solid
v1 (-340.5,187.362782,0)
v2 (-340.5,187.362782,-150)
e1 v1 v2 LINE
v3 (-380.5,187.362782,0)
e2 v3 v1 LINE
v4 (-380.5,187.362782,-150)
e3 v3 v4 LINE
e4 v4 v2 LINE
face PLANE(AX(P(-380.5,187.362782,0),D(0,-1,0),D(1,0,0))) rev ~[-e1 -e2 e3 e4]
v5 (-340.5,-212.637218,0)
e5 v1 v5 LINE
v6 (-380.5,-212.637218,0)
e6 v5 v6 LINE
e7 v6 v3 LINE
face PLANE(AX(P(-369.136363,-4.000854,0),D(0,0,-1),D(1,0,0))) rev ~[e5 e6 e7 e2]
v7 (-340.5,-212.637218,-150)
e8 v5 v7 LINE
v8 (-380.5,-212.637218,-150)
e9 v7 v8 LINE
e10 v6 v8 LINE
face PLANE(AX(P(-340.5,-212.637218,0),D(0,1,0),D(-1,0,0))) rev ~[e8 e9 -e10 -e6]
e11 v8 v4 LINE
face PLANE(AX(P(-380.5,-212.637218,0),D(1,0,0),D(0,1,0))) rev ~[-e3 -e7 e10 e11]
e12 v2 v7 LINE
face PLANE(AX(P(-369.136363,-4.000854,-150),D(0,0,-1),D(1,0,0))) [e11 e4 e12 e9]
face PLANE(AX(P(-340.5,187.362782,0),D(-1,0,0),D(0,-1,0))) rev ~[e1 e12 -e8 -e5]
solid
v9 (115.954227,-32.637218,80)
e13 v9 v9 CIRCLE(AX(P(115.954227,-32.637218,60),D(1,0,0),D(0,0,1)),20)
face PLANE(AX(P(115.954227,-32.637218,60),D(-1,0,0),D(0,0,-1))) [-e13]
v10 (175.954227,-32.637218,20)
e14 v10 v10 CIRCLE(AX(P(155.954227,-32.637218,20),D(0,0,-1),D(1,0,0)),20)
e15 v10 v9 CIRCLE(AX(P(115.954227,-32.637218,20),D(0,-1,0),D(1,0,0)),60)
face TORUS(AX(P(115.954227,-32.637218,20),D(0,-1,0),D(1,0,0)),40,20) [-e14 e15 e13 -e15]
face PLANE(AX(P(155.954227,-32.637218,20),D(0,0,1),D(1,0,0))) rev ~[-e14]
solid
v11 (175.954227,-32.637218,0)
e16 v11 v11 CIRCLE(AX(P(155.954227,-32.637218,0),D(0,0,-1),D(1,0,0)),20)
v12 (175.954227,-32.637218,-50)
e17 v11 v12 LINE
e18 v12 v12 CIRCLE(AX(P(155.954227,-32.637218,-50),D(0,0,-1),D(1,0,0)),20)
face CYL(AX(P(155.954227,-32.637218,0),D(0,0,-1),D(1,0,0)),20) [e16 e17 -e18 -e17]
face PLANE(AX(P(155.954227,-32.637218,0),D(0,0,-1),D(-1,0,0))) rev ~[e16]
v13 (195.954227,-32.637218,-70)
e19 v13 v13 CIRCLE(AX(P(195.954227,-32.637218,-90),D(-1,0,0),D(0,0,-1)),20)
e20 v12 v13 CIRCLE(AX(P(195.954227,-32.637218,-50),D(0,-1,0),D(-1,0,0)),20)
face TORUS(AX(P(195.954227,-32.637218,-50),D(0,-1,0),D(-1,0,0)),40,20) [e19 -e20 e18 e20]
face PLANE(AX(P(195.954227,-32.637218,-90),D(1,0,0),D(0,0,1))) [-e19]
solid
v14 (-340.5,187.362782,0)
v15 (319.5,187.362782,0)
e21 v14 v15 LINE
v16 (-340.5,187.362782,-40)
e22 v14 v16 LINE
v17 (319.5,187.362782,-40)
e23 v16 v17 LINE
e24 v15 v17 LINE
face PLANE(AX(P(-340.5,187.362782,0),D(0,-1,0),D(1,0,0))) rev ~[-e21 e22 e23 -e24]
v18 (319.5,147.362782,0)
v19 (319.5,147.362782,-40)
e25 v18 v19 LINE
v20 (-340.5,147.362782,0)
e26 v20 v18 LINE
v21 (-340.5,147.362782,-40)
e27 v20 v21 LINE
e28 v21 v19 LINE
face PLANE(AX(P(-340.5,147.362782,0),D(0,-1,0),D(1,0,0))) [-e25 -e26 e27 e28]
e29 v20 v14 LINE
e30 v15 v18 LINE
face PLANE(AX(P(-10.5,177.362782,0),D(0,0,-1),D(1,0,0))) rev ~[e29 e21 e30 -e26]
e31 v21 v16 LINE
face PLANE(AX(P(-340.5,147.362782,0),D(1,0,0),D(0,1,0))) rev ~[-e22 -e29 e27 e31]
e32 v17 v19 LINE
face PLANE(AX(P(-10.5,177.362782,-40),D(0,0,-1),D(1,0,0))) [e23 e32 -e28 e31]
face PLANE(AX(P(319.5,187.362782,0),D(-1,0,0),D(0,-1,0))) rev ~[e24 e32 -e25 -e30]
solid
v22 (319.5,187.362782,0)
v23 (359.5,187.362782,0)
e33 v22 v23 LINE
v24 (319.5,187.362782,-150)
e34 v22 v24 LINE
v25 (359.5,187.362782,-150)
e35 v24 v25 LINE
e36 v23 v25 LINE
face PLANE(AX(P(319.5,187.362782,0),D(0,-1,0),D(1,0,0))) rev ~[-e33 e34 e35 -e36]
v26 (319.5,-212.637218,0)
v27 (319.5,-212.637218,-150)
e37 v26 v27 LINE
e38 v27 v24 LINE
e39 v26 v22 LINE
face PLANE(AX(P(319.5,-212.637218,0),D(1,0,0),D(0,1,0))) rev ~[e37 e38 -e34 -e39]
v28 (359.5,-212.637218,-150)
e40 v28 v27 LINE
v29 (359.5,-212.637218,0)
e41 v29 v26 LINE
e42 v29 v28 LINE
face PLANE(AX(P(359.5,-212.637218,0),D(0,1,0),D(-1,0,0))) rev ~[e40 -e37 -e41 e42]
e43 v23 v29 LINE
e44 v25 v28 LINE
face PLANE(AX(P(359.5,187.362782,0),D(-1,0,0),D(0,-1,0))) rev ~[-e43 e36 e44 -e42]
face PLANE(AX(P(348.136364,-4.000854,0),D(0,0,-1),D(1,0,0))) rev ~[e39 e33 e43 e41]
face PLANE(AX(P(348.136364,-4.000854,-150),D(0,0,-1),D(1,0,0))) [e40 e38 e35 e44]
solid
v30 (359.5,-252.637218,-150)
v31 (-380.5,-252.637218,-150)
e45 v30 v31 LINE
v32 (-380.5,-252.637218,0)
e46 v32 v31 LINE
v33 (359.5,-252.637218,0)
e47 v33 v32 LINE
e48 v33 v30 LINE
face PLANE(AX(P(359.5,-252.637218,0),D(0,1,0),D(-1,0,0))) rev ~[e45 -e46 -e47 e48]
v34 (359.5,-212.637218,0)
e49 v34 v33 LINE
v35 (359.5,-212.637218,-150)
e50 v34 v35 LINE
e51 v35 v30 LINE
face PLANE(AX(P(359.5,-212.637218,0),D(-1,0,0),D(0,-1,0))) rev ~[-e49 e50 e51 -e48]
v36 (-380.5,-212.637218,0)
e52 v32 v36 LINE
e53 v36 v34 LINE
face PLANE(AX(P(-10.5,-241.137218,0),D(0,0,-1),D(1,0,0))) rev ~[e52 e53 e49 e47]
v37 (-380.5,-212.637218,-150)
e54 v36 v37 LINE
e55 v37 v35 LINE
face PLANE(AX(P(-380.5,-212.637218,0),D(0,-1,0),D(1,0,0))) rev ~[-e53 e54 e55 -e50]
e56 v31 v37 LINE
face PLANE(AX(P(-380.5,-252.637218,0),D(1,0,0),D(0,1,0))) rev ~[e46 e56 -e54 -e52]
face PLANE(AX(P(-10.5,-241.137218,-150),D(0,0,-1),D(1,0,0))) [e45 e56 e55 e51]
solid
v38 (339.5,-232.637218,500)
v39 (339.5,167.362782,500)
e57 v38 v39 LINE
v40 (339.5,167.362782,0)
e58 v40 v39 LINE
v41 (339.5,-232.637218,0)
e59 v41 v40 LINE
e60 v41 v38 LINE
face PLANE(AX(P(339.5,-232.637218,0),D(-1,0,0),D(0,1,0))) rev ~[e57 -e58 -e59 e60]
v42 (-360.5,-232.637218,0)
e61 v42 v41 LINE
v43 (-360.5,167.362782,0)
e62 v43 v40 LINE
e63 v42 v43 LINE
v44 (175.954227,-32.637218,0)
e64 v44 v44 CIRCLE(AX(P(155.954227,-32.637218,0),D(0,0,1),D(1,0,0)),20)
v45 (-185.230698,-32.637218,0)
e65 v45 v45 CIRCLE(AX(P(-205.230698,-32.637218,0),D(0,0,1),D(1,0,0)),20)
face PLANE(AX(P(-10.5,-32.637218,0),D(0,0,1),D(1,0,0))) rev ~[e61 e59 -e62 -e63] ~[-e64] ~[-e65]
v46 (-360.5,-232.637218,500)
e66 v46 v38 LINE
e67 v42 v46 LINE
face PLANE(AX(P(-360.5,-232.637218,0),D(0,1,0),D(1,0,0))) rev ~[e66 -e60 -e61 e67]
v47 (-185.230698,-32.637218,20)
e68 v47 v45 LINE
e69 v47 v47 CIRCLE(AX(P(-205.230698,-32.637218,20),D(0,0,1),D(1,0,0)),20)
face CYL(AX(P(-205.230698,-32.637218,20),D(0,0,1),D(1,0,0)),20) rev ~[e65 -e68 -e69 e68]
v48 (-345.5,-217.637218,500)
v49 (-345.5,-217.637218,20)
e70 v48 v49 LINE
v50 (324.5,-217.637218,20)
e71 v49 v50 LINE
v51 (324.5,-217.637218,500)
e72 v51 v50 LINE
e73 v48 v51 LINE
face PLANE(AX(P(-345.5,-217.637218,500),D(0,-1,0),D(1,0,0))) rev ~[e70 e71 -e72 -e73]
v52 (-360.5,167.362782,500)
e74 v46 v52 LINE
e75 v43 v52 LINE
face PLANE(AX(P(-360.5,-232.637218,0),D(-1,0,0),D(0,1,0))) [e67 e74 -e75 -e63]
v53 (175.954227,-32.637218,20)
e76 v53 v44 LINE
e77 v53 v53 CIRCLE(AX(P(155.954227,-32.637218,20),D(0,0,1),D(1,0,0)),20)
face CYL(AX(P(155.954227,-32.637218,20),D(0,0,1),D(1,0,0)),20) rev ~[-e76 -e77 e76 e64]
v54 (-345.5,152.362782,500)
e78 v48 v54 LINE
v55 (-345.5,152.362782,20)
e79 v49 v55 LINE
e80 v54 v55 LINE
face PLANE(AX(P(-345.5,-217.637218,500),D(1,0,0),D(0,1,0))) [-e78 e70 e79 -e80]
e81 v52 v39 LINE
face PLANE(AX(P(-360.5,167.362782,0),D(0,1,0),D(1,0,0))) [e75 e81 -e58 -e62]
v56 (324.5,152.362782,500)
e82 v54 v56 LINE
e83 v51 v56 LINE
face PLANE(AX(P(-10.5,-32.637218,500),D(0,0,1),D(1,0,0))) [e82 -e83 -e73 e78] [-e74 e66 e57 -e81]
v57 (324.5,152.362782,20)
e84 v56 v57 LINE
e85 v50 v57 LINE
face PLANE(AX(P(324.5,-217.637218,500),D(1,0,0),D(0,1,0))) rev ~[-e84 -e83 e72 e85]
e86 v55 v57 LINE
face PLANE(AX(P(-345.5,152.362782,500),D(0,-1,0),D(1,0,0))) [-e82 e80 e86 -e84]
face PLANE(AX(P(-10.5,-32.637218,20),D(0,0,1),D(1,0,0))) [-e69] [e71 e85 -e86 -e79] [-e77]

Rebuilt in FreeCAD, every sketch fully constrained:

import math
import FreeCAD as App
import Part
import Sketcher
from FreeCAD import Vector

doc = App.newDocument("Part")
body = doc.addObject("PartDesign::Body", "Body")

sketch1 = body.newObject("Sketcher::SketchObject", "Sketch")
sketch1.AttachmentSupport = (doc.getObject("XY_Plane"), [""])
sketch1.MapMode = "FlatFace"
sketch1.addGeometry([
    Part.LineSegment(Vector(-360.5, 167.362782, 0), Vector(-360.5, -232.637218, 0)),
    Part.LineSegment(Vector(-360.5, -232.637218, 0), Vector(339.5, -232.637218, 0)),
    Part.LineSegment(Vector(339.5, -232.637218, 0), Vector(339.5, 167.362782, 0)),
    Part.LineSegment(Vector(339.5, 167.362782, 0), Vector(-360.5, 167.362782, 0)),
], False)
sketch1.addConstraint([
    Sketcher.Constraint("Coincident", 0, 2, 1, 1),
    Sketcher.Constraint("Coincident", 1, 2, 2, 1),
    Sketcher.Constraint("Coincident", 2, 2, 3, 1),
    Sketcher.Constraint("Coincident", 3, 2, 0, 1),
    Sketcher.Constraint("Vertical", 0),
    Sketcher.Constraint("Horizontal", 1),
    Sketcher.Constraint("Vertical", 2),
    Sketcher.Constraint("Horizontal", 3),
    Sketcher.Constraint("DistanceX", 1, 1, 1, 2, 700.0),
    Sketcher.Constraint("DistanceY", 0, 2, 0, 1, 400.0),
    Sketcher.Constraint("DistanceX", 0, 2, -1, 1, 360.5),
    Sketcher.Constraint("DistanceY", 0, 2, -1, 1, 232.637218),
])
pad1 = body.newObject("PartDesign::Pad", "Pad")
pad1.Profile = sketch1
pad1.Length = 500

sketch2 = body.newObject("Sketcher::SketchObject", "Sketch001")
sketch2.AttachmentSupport = (doc.getObject("XY_Plane"), [""])
sketch2.MapMode = "FlatFace"
sketch2.AttachmentOffset = App.Placement(Vector(0, 0, 500), App.Rotation())
sketch2.addGeometry([
    Part.LineSegment(Vector(-345.5, 152.362782, 0), Vector(-345.5, -217.637218, 0)),
    Part.LineSegment(Vector(-345.5, -217.637218, 0), Vector(324.5, -217.637218, 0)),
    Part.LineSegment(Vector(324.5, -217.637218, 0), Vector(324.5, 152.362782, 0)),
    Part.LineSegment(Vector(324.5, 152.362782, 0), Vector(-345.5, 152.362782, 0)),
], False)
sketch2.addConstraint([
    Sketcher.Constraint("Coincident", 0, 2, 1, 1),
    Sketcher.Constraint("Coincident", 1, 2, 2, 1),
    Sketcher.Constraint("Coincident", 2, 2, 3, 1),
    Sketcher.Constraint("Coincident", 3, 2, 0, 1),
    Sketcher.Constraint("Vertical", 0),
    Sketcher.Constraint("Horizontal", 1),
    Sketcher.Constraint("Vertical", 2),
    Sketcher.Constraint("Horizontal", 3),
    Sketcher.Constraint("DistanceX", 1, 1, 1, 2, 670.0),
    Sketcher.Constraint("DistanceY", 0, 2, 0, 1, 370.0),
    Sketcher.Constraint("DistanceX", 0, 2, -1, 1, 345.5),
    Sketcher.Constraint("DistanceY", 0, 2, -1, 1, 217.637218),
])
pocket1 = body.newObject("PartDesign::Pocket", "Pocket")
pocket1.Profile = sketch2
pocket1.Length = 480

sketch3 = body.newObject("Sketcher::SketchObject", "Sketch002")
sketch3.AttachmentSupport = (doc.getObject("XY_Plane"), [""])
sketch3.MapMode = "FlatFace"
sketch3.AttachmentOffset = App.Placement(Vector(0, 0, 20), App.Rotation())
sketch3.addGeometry([
    Part.Circle(Vector(-205.230698, -32.637218, 0), Vector(0, 0, 1), 20),
    Part.Circle(Vector(155.954227, -32.637218, 0), Vector(0, 0, 1), 20),
], False)
sketch3.addConstraint([
    Sketcher.Constraint("Equal", 0, 1),
    Sketcher.Constraint("Horizontal", 0, 3, 1, 3),
    Sketcher.Constraint("Diameter", 0, 40.0),
    Sketcher.Constraint("DistanceX", 0, 3, -1, 1, 205.230698),
    Sketcher.Constraint("DistanceY", 0, 3, -1, 1, 32.637218),
    Sketcher.Constraint("DistanceX", -1, 1, 1, 3, 155.954227),
])
pocket2 = body.newObject("PartDesign::Pocket", "Pocket001")
pocket2.Profile = sketch3
pocket2.Type = "ThroughAll"
body2 = doc.addObject("PartDesign::Body", "Body001")

sketch4 = body2.newObject("Sketcher::SketchObject", "Sketch003")
sketch4.AttachmentSupport = (doc.getObject("XY_Plane001"), [""])
sketch4.MapMode = "FlatFace"
sketch4.addGeometry([
    Part.LineSegment(Vector(-380.5, -212.637218, 0), Vector(-380.5, 187.362782, 0)),
    Part.LineSegment(Vector(-380.5, 187.362782, 0), Vector(-340.5, 187.362782, 0)),
    Part.LineSegment(Vector(-340.5, 187.362782, 0), Vector(-340.5, -212.637218, 0)),
    Part.LineSegment(Vector(-340.5, -212.637218, 0), Vector(-380.5, -212.637218, 0)),
], False)
sketch4.addConstraint([
    Sketcher.Constraint("Coincident", 0, 2, 1, 1),
    Sketcher.Constraint("Coincident", 1, 2, 2, 1),
    Sketcher.Constraint("Coincident", 2, 2, 3, 1),
    Sketcher.Constraint("Coincident", 3, 2, 0, 1),
    Sketcher.Constraint("Vertical", 0),
    Sketcher.Constraint("Horizontal", 1),
    Sketcher.Constraint("Vertical", 2),
    Sketcher.Constraint("Horizontal", 3),
    Sketcher.Constraint("DistanceX", 1, 1, 1, 2, 40.0),
    Sketcher.Constraint("DistanceY", 0, 1, 0, 2, 400.0),
    Sketcher.Constraint("DistanceX", 0, 2, -1, 1, 380.5),
    Sketcher.Constraint("DistanceY", -1, 1, 0, 2, 187.362782),
])
pad2 = body2.newObject("PartDesign::Pad", "Pad001")
pad2.Profile = sketch4
pad2.Length = 150
pad2.Reversed = True
body3 = doc.addObject("PartDesign::Body", "Body002")

sketch5 = body3.newObject("Sketcher::SketchObject", "Sketch004")
sketch5.AttachmentSupport = (doc.getObject("XY_Plane002"), [""])
sketch5.MapMode = "FlatFace"
sketch5.addGeometry([
    Part.LineSegment(Vector(359.5, -252.637218, 0), Vector(-380.5, -252.637218, 0)),
    Part.LineSegment(Vector(-380.5, -252.637218, 0), Vector(-380.5, -212.637218, 0)),
    Part.LineSegment(Vector(-380.5, -212.637218, 0), Vector(359.5, -212.637218, 0)),
    Part.LineSegment(Vector(359.5, -212.637218, 0), Vector(359.5, -252.637218, 0)),
], False)
sketch5.addConstraint([
    Sketcher.Constraint("Coincident", 0, 2, 1, 1),
    Sketcher.Constraint("Coincident", 1, 2, 2, 1),
    Sketcher.Constraint("Coincident", 2, 2, 3, 1),
    Sketcher.Constraint("Coincident", 3, 2, 0, 1),
    Sketcher.Constraint("Horizontal", 0),
    Sketcher.Constraint("Vertical", 1),
    Sketcher.Constraint("Horizontal", 2),
    Sketcher.Constraint("Vertical", 3),
    Sketcher.Constraint("DistanceX", 0, 2, 0, 1, 740.0),
    Sketcher.Constraint("DistanceY", 1, 1, 1, 2, 40.0),
    Sketcher.Constraint("DistanceX", 0, 2, -1, 1, 380.5),
    Sketcher.Constraint("DistanceY", 0, 2, -1, 1, 252.637218),
])
pad3 = body3.newObject("PartDesign::Pad", "Pad002")
pad3.Profile = sketch5
pad3.Length = 150
pad3.Reversed = True
body4 = doc.addObject("PartDesign::Body", "Body003")

sketch6 = body4.newObject("Sketcher::SketchObject", "Sketch005")
sketch6.AttachmentSupport = (doc.getObject("XY_Plane003"), [""])
sketch6.MapMode = "FlatFace"
sketch6.addGeometry([
    Part.LineSegment(Vector(359.5, 187.362782, 0), Vector(359.5, -212.637218, 0)),
    Part.LineSegment(Vector(359.5, -212.637218, 0), Vector(319.5, -212.637218, 0)),
    Part.LineSegment(Vector(319.5, -212.637218, 0), Vector(319.5, 187.362782, 0)),
    Part.LineSegment(Vector(319.5, 187.362782, 0), Vector(359.5, 187.362782, 0)),
], False)
sketch6.addConstraint([
    Sketcher.Constraint("Coincident", 0, 2, 1, 1),
    Sketcher.Constraint("Coincident", 1, 2, 2, 1),
    Sketcher.Constraint("Coincident", 2, 2, 3, 1),
    Sketcher.Constraint("Coincident", 3, 2, 0, 1),
    Sketcher.Constraint("Vertical", 0),
    Sketcher.Constraint("Horizontal", 1),
    Sketcher.Constraint("Vertical", 2),
    Sketcher.Constraint("Horizontal", 3),
    Sketcher.Constraint("DistanceX", 1, 2, 1, 1, 40.0),
    Sketcher.Constraint("DistanceY", 0, 2, 0, 1, 400.0),
    Sketcher.Constraint("DistanceX", -1, 1, 0, 2, 359.5),
    Sketcher.Constraint("DistanceY", 0, 2, -1, 1, 212.637218),
])
pad4 = body4.newObject("PartDesign::Pad", "Pad003")
pad4.Profile = sketch6
pad4.Length = 150
pad4.Reversed = True
body5 = doc.addObject("PartDesign::Body", "Body004")

sketch7 = body5.newObject("Sketcher::SketchObject", "Sketch006")
sketch7.AttachmentSupport = (doc.getObject("XY_Plane004"), [""])
sketch7.MapMode = "FlatFace"
sketch7.addGeometry([
    Part.LineSegment(Vector(-340.5, 187.362782, 0), Vector(319.5, 187.362782, 0)),
    Part.LineSegment(Vector(319.5, 187.362782, 0), Vector(319.5, 147.362782, 0)),
    Part.LineSegment(Vector(319.5, 147.362782, 0), Vector(-340.5, 147.362782, 0)),
    Part.LineSegment(Vector(-340.5, 147.362782, 0), Vector(-340.5, 187.362782, 0)),
], False)
sketch7.addConstraint([
    Sketcher.Constraint("Coincident", 0, 2, 1, 1),
    Sketcher.Constraint("Coincident", 1, 2, 2, 1),
    Sketcher.Constraint("Coincident", 2, 2, 3, 1),
    Sketcher.Constraint("Coincident", 3, 2, 0, 1),
    Sketcher.Constraint("Horizontal", 0),
    Sketcher.Constraint("Vertical", 1),
    Sketcher.Constraint("Horizontal", 2),
    Sketcher.Constraint("Vertical", 3),
    Sketcher.Constraint("DistanceX", 0, 1, 0, 2, 660.0),
    Sketcher.Constraint("DistanceY", 1, 2, 1, 1, 40.0),
    Sketcher.Constraint("DistanceX", -1, 1, 0, 2, 319.5),
    Sketcher.Constraint("DistanceY", -1, 1, 0, 2, 187.362782),
])
pad5 = body5.newObject("PartDesign::Pad", "Pad004")
pad5.Profile = sketch7
pad5.Length = 40
pad5.Reversed = True
body6 = doc.addObject("PartDesign::Body", "Body005")

sketch8 = body6.newObject("Sketcher::SketchObject", "Sketch007")
sketch8.AttachmentSupport = (doc.getObject("XY_Plane005"), [""])
sketch8.MapMode = "FlatFace"
sketch8.AttachmentOffset = App.Placement(Vector(0, 0, 20), App.Rotation())
sketch8.addGeometry(Part.Circle(Vector(155.954227, -32.637218, 0), Vector(0, 0, 1), 20), False)
sketch8.addConstraint([
    Sketcher.Constraint("Diameter", 0, 40.0),
    Sketcher.Constraint("DistanceX", -1, 1, 0, 3, 155.954227),
    Sketcher.Constraint("DistanceY", 0, 3, -1, 1, 32.637218),
])

sketch9 = body6.newObject("Sketcher::SketchObject", "Sketch008")
sketch9.AttachmentSupport = (doc.getObject("XZ_Plane005"), [""])
sketch9.MapMode = "FlatFace"
sketch9.AttachmentOffset = App.Placement(Vector(0, 0, 32.637218), App.Rotation())
sketch9.addGeometry(Part.ArcOfCircle(Part.Circle(Vector(115.954227, 20, 0), Vector(0, 0, 1), 40), math.radians(0), math.radians(90)), False)
sketch9.addConstraint([
    Sketcher.Constraint("Radius", 0, 40.0),
    Sketcher.Constraint("DistanceY", -1, 1, 0, 3, 20.0),
    Sketcher.Constraint("DistanceY", -1, 1, 0, 1, 20.0),
    Sketcher.Constraint("DistanceX", 0, 2, 0, 1, 40.0),
    Sketcher.Constraint("DistanceX", -1, 1, 0, 3, 115.954227),
])
doc.recompute()

additivepipe = body6.newObject("PartDesign::AdditivePipe", "AdditivePipe")
additivepipe.Profile = sketch8
additivepipe.Spine = (sketch9, ["Edge1"])
body7 = doc.addObject("PartDesign::Body", "Body006")

sketch10 = body7.newObject("Sketcher::SketchObject", "Sketch009")
sketch10.AttachmentSupport = (doc.getObject("XY_Plane006"), [""])
sketch10.MapMode = "FlatFace"
sketch10.addGeometry(Part.Circle(Vector(155.954227, -32.637218, 0), Vector(0, 0, 1), 20), False)
sketch10.addConstraint([
    Sketcher.Constraint("Diameter", 0, 40.0),
    Sketcher.Constraint("DistanceX", -1, 1, 0, 3, 155.954227),
    Sketcher.Constraint("DistanceY", 0, 3, -1, 1, 32.637218),
])

sketch11 = body7.newObject("Sketcher::SketchObject", "Sketch010")
sketch11.AttachmentSupport = (doc.getObject("XZ_Plane006"), [""])
sketch11.MapMode = "FlatFace"
sketch11.AttachmentOffset = App.Placement(Vector(0, 0, 32.637218), App.Rotation())
sketch11.addGeometry([
    Part.LineSegment(Vector(155.954227, 0, 0), Vector(155.954227, -50, 0)),
    Part.ArcOfCircle(Part.Circle(Vector(195.954227, -50, 0), Vector(0, 0, 1), 40), math.radians(180), math.radians(270)),
], False)
sketch11.addConstraint([
    Sketcher.Constraint("Tangent", 0, 2, 1, 1),
    Sketcher.Constraint("Vertical", 0),
    Sketcher.Constraint("PointOnObject", 0, 1, -1),
    Sketcher.Constraint("Radius", 1, 40.0),
    Sketcher.Constraint("DistanceY", 0, 2, 0, 1, 50.0),
    Sketcher.Constraint("DistanceX", 0, 2, 1, 2, 40.0),
    Sketcher.Constraint("DistanceX", -1, 1, 1, 3, 195.954227),
])
doc.recompute()

additivepipe2 = body7.newObject("PartDesign::AdditivePipe", "AdditivePipe001")
additivepipe2.Profile = sketch10
additivepipe2.Spine = (sketch11, ["Edge1", "Edge2"])

doc.recompute()
